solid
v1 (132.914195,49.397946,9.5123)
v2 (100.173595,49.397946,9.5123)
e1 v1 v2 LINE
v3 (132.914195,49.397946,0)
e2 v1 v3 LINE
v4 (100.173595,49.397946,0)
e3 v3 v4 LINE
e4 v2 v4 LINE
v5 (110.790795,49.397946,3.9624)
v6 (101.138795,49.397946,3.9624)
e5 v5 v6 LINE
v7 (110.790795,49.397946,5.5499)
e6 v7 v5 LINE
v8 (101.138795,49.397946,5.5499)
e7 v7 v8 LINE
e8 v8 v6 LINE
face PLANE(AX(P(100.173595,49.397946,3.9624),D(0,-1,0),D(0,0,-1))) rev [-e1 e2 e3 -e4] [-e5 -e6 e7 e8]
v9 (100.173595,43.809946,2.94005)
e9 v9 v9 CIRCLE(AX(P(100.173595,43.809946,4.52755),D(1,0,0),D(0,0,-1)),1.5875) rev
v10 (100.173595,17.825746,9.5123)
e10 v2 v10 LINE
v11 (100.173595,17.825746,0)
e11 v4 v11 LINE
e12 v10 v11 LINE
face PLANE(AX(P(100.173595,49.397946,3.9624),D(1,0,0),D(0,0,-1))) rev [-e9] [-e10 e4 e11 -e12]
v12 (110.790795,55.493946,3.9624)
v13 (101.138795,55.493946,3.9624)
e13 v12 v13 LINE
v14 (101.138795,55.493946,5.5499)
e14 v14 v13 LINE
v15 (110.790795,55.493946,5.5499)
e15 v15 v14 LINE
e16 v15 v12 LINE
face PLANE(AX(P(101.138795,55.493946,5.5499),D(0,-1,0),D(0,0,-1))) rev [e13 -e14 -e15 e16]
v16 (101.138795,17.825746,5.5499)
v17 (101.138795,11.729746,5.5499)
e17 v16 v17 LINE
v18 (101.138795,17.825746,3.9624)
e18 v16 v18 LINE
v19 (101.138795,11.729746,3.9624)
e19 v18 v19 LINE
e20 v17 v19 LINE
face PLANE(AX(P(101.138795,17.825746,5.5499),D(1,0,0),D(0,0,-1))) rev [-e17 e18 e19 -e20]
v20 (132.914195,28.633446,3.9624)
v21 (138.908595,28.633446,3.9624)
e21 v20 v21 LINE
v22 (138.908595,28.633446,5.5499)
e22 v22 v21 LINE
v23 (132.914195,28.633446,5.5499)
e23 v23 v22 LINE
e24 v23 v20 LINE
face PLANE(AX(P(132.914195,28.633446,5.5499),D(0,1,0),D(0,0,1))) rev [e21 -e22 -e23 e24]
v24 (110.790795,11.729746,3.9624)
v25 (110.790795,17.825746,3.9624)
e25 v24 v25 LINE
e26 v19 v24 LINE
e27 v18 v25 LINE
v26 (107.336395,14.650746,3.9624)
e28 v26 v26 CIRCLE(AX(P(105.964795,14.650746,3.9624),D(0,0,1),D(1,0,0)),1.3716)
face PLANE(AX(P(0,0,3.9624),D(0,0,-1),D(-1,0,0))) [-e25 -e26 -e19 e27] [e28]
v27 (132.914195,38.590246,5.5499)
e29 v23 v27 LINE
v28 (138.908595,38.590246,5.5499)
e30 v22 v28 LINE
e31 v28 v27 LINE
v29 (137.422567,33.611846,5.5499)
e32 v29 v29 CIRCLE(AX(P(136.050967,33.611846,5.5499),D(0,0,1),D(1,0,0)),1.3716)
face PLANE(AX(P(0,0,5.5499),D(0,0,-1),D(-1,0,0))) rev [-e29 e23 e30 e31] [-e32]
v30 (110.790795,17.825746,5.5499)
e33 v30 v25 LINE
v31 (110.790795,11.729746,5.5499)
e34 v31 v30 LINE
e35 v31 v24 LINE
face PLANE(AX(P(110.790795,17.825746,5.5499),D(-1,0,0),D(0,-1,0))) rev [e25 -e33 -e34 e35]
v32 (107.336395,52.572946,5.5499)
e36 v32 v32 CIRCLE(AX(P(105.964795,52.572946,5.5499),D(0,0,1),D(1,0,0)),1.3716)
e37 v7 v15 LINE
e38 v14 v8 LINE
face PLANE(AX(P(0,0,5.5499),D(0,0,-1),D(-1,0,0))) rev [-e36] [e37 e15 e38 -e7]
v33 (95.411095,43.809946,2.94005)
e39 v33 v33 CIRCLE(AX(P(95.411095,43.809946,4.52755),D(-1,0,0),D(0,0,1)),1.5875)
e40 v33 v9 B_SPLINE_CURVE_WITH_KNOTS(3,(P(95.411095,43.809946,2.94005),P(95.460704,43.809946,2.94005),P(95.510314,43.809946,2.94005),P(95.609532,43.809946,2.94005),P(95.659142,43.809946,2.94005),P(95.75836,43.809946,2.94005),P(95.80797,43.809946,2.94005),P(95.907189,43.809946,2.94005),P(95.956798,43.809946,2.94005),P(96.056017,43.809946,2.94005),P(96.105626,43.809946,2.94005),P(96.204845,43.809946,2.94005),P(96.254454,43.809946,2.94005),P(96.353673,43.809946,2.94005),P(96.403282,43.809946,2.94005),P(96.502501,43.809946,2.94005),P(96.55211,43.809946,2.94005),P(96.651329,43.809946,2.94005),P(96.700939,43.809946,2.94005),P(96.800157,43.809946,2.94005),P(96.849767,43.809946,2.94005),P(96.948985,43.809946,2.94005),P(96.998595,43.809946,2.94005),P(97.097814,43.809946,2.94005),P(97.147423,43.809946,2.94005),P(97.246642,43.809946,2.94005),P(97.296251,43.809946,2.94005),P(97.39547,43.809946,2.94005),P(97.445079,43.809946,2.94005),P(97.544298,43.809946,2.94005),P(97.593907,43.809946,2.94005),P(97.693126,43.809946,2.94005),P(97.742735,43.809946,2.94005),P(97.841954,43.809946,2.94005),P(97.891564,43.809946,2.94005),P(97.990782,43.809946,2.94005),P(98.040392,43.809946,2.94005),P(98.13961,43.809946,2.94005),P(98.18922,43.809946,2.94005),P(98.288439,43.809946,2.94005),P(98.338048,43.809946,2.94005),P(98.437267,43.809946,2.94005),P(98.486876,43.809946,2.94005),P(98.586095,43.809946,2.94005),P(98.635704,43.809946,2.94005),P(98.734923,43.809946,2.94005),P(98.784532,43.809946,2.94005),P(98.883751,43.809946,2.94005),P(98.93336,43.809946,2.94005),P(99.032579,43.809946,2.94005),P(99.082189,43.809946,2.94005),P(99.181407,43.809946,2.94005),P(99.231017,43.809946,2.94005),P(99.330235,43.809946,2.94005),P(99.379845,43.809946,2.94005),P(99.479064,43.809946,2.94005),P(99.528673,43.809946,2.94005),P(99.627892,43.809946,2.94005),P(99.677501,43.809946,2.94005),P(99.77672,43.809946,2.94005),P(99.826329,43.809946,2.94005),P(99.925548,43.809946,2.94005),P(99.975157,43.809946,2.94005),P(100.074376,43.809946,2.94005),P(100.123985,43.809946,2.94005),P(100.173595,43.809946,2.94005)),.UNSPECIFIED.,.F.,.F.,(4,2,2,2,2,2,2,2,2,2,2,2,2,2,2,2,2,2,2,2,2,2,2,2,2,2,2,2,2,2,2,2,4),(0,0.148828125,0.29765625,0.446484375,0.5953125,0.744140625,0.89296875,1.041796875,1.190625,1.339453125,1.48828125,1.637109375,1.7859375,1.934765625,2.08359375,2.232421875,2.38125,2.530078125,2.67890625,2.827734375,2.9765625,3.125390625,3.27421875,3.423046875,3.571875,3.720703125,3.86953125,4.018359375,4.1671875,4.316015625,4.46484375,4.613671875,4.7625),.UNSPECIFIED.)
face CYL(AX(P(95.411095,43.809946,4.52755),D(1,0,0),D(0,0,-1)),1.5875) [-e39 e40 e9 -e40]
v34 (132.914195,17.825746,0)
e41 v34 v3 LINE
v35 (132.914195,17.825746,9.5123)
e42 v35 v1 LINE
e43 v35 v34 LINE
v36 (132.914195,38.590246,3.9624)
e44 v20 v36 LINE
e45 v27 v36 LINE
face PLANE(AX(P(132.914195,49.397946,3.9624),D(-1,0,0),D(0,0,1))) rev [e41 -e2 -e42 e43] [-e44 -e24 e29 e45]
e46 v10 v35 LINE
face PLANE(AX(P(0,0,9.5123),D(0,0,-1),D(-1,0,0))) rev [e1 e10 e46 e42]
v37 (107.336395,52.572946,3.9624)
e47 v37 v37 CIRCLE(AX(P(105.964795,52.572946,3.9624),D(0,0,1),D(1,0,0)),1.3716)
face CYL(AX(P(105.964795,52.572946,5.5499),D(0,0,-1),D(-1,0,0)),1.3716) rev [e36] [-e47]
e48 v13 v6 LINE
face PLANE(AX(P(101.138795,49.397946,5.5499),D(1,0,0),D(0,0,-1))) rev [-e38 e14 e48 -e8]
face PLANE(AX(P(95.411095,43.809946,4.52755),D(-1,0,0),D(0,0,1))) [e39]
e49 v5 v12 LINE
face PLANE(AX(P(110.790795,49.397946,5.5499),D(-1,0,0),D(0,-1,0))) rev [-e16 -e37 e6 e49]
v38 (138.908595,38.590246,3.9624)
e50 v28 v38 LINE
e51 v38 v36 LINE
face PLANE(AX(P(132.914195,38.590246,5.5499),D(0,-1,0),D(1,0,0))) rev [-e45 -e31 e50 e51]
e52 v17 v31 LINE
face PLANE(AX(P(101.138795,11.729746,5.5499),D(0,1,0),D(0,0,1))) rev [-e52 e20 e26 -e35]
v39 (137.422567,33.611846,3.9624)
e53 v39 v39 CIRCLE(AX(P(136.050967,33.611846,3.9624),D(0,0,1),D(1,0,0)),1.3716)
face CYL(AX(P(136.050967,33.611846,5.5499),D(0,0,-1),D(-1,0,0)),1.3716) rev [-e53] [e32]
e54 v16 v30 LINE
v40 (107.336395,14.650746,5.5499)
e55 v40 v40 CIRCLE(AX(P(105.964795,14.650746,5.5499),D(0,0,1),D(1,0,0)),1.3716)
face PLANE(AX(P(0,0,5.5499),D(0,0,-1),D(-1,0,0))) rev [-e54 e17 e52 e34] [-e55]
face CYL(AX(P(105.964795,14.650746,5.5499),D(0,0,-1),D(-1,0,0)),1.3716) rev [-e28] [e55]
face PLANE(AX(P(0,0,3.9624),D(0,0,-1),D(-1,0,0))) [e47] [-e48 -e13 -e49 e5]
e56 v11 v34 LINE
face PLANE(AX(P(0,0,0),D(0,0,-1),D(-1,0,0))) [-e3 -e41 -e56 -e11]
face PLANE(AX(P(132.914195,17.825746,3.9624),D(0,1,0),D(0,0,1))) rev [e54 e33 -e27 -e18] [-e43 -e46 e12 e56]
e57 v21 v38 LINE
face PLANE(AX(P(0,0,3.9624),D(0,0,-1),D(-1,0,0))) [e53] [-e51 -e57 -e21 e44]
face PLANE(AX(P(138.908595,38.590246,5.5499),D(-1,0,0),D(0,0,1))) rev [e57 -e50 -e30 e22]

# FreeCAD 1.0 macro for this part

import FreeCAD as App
import Part
import Sketcher
Q = App.Units.Quantity

doc = App.newDocument("Part")
params = doc.addObject("Spreadsheet::Sheet", "Params")
for row, (alias, value) in enumerate([
    ("sketch1_width", "1.289 in"),
    ("sketch1_height", "1.243 in"),
    ("pad1_length", "0.156 in"),
    ("sketch2_diameter", "0.108 in"),
    ("sketch2_width", "0.38 in"),
    ("sketch2_height", "0.24 in"),
    ("sketch2_width2", "0.038 in"),
    ("sketch2_width3", "0.871 in"),
    ("pad2_length", "0.0625 in"),
    ("sketch3_width", "1.289 in"),
    ("sketch3_height", "1.243 in"),
    ("pad3_length", "0.156 in"),
    ("sketch4_diameter", "0.125 in"),
    ("pad4_length", "0.1875 in"),
], start=1):
    params.set(f"A{row}", alias)
    params.set(f"B{row}", "=" + value)
    params.setAlias(f"B{row}", alias)

body = doc.addObject("PartDesign::Body", "Body")

# Sketch on XY plane
sketch1 = doc.addObject("Sketcher::SketchObject", "Sketch")
body.addObject(sketch1)
sketch1.AttachmentSupport = (doc.XY_Plane, [""])
sketch1.MapMode = "FlatFace"
sketch1.addGeometry([
    Part.LineSegment(App.Vector(100, 49, 0), App.Vector(100, 18, 0)),
    Part.LineSegment(App.Vector(100, 18, 0), App.Vector(133, 18, 0)),
    Part.LineSegment(App.Vector(133, 18, 0), App.Vector(133, 49, 0)),
    Part.LineSegment(App.Vector(133, 49, 0), App.Vector(100, 49, 0)),
], False)
sketch1.addConstraint([
    Sketcher.Constraint("Coincident", 0, 2, 1, 1),
    Sketcher.Constraint("Coincident", 1, 2, 2, 1),
    Sketcher.Constraint("Coincident", 2, 2, 3, 1),
    Sketcher.Constraint("Coincident", 3, 2, 0, 1),
    Sketcher.Constraint("Vertical", 0),
    Sketcher.Constraint("Horizontal", 1),
    Sketcher.Constraint("Vertical", 2),
    Sketcher.Constraint("Horizontal", 3),
    Sketcher.Constraint("DistanceX", 1, 1, 1, 2, Q("1.289 in")),
    Sketcher.Constraint("DistanceY", 0, 2, 0, 1, Q("1.243 in")),
    Sketcher.Constraint("DistanceX", -1, 1, 0, 2, Q("100.173595 mm")),
    Sketcher.Constraint("DistanceY", -1, 1, 0, 2, Q("17.825746 mm")),
])
sketch1.setExpression("Constraints[8]", "Params.sketch1_width")
sketch1.setExpression("Constraints[9]", "Params.sketch1_height")
pad1 = doc.addObject("PartDesign::Pad", "Pad")
body.addObject(pad1)
pad1.Profile = sketch1
pad1.setExpression("Length", "Params.pad1_length")

# Sketch on XY plane
sketch2 = doc.addObject("Sketcher::SketchObject", "Sketch001")
body.addObject(sketch2)
sketch2.AttachmentSupport = (doc.XY_Plane, [""])
sketch2.MapMode = "FlatFace"
sketch2.AttachmentOffset = App.Placement(App.Vector(0, 0, 0.156 * 25.4), App.Rotation())
sketch2.addGeometry([
    Part.LineSegment(App.Vector(101.1, 49.4, 0), App.Vector(100.2, 49.4, 0)),  # 0
    Part.LineSegment(App.Vector(100.2, 49.4, 0), App.Vector(100.2, 17.8, 0)),  # 1
    Part.LineSegment(App.Vector(100.2, 17.8, 0), App.Vector(101.1, 17.8, 0)),  # 2
    Part.LineSegment(App.Vector(101.1, 17.8, 0), App.Vector(101.1, 11.7, 0)),  # 3
    Part.LineSegment(App.Vector(101.1, 11.7, 0), App.Vector(110.8, 11.7, 0)),  # 4
    Part.LineSegment(App.Vector(110.8, 11.7, 0), App.Vector(110.8, 17.8, 0)),  # 5
    Part.LineSegment(App.Vector(110.8, 17.8, 0), App.Vector(132.9, 17.8, 0)),  # 6
    Part.LineSegment(App.Vector(132.9, 17.8, 0), App.Vector(132.9, 28.6, 0)),  # 7
    Part.LineSegment(App.Vector(132.9, 28.6, 0), App.Vector(138.9, 28.6, 0)),  # 8
    Part.LineSegment(App.Vector(138.9, 28.6, 0), App.Vector(138.9, 38.6, 0)),  # 9
    Part.LineSegment(App.Vector(138.9, 38.6, 0), App.Vector(132.9, 38.6, 0)),  # 10
    Part.LineSegment(App.Vector(132.9, 38.6, 0), App.Vector(132.9, 49.4, 0)),  # 11
    Part.LineSegment(App.Vector(132.9, 49.4, 0), App.Vector(110.8, 49.4, 0)),  # 12
    Part.LineSegment(App.Vector(110.8, 49.4, 0), App.Vector(110.8, 55.5, 0)),  # 13
    Part.LineSegment(App.Vector(110.8, 55.5, 0), App.Vector(101.1, 55.5, 0)),  # 14
    Part.LineSegment(App.Vector(101.1, 55.5, 0), App.Vector(101.1, 49.4, 0)),  # 15
    Part.Circle(App.Vector(136.1, 33.6, 0), App.Vector(0, 0, 1), 1.4),  # 16
    Part.Circle(App.Vector(106, 14.7, 0), App.Vector(0, 0, 1), 1.4),  # 17
    Part.Circle(App.Vector(106, 52.6, 0), App.Vector(0, 0, 1), 1.4),  # 18
], False)
sketch2.addConstraint([
    Sketcher.Constraint("Coincident", 0, 2, 1, 1),
    Sketcher.Constraint("Coincident", 1, 2, 2, 1),
    Sketcher.Constraint("Coincident", 2, 2, 3, 1),
    Sketcher.Constraint("Coincident", 3, 2, 4, 1),
    Sketcher.Constraint("Coincident", 4, 2, 5, 1),
    Sketcher.Constraint("Coincident", 5, 2, 6, 1),
    Sketcher.Constraint("Coincident", 6, 2, 7, 1),
    Sketcher.Constraint("Coincident", 7, 2, 8, 1),
    Sketcher.Constraint("Coincident", 8, 2, 9, 1),
    Sketcher.Constraint("Coincident", 9, 2, 10, 1),
    Sketcher.Constraint("Coincident", 10, 2, 11, 1),
    Sketcher.Constraint("Coincident", 11, 2, 12, 1),
    Sketcher.Constraint("Coincident", 12, 2, 13, 1),
    Sketcher.Constraint("Coincident", 13, 2, 14, 1),
    Sketcher.Constraint("Coincident", 14, 2, 15, 1),
    Sketcher.Constraint("Coincident", 15, 2, 0, 1),
    Sketcher.Constraint("Horizontal", 0),
    Sketcher.Constraint("Vertical", 1),
    Sketcher.Constraint("Horizontal", 2),
    Sketcher.Constraint("Vertical", 3),
    Sketcher.Constraint("Horizontal", 4),
    Sketcher.Constraint("Vertical", 5),
    Sketcher.Constraint("Horizontal", 6),
    Sketcher.Constraint("Vertical", 7),
    Sketcher.Constraint("Horizontal", 8),
    Sketcher.Constraint("Vertical", 9),
    Sketcher.Constraint("Horizontal", 10),
    Sketcher.Constraint("Vertical", 11),
    Sketcher.Constraint("Horizontal", 12),
    Sketcher.Constraint("Vertical", 13),
    Sketcher.Constraint("Horizontal", 14),
    Sketcher.Constraint("Vertical", 15),
    Sketcher.Constraint("Equal", 16, 17),
    Sketcher.Constraint("Equal", 17, 18),
    Sketcher.Constraint("Horizontal", 2, 2, 5, 2),
    Sketcher.Constraint("Horizontal", 0, 2, 11, 2),
    Sketcher.Constraint("Vertical", 17, 3, 18, 3),
    Sketcher.Constraint("Vertical", 7, 2, 10, 2),
    Sketcher.Constraint("Vertical", 5, 2, 12, 2),
    Sketcher.Constraint("Vertical", 3, 2, 14, 2),
    Sketcher.Constraint("Equal", 7, 11),
    Sketcher.Constraint("Equal", 5, 13),
    Sketcher.Constraint("Diameter", 16, Q("0.108 in")),
    Sketcher.Constraint("DistanceX", 4, 1, 4, 2, Q("0.38 in")),
    Sketcher.Constraint("DistanceY", 3, 2, 3, 1, Q("0.24 in")),
    Sketcher.Constraint("DistanceX", 0, 2, 0, 1, Q("0.038 in")),
    Sketcher.Constraint("DistanceX", 6, 1, 6, 2, Q("0.871 in")),
    Sketcher.Constraint("DistanceX", 8, 1, 8, 2, Q("0.236 in")),
    Sketcher.Constraint("DistanceY", 1, 2, 1, 1, Q("1.243 in")),
    Sketcher.Constraint("DistanceY", 9, 1, 9, 2, Q("0.392 in")),
    Sketcher.Constraint("DistanceX", 2, 2, 17, 3, Q("0.19 in")),
    Sketcher.Constraint("DistanceY", 17, 3, 18, 3, Q("1.493 in")),
    Sketcher.Constraint("DistanceY", 0, 2, 18, 3, Q("0.125 in")),
    Sketcher.Constraint("DistanceY", 7, 2, 16, 3, Q("0.196 in")),
    Sketcher.Constraint("DistanceX", -1, 1, 16, 3, Q("136.050967 mm")),
    Sketcher.Constraint("DistanceY", -1, 1, 16, 3, Q("33.611846 mm")),
    Sketcher.Constraint("DistanceX", -1, 1, 17, 3, Q("105.964795 mm")),
])
sketch2.setExpression("Constraints[42]", "Params.sketch2_diameter")
sketch2.setExpression("Constraints[43]", "Params.sketch2_width")
sketch2.setExpression("Constraints[44]", "Params.sketch2_height")
sketch2.setExpression("Constraints[45]", "Params.sketch2_width2")
sketch2.setExpression("Constraints[46]", "Params.sketch2_width3")
pad2 = doc.addObject("PartDesign::Pad", "Pad001")
body.addObject(pad2)
pad2.Profile = sketch2
pad2.setExpression("Length", "Params.pad2_length")

# Sketch on XY plane
sketch3 = doc.addObject("Sketcher::SketchObject", "Sketch002")
body.addObject(sketch3)
sketch3.AttachmentSupport = (doc.XY_Plane, [""])
sketch3.MapMode = "FlatFace"
sketch3.AttachmentOffset = App.Placement(App.Vector(0, 0, 0.2185 * 25.4), App.Rotation())
sketch3.addGeometry([
    Part.LineSegment(App.Vector(100, 49, 0), App.Vector(100, 18, 0)),
    Part.LineSegment(App.Vector(100, 18, 0), App.Vector(133, 18, 0)),
    Part.LineSegment(App.Vector(133, 18, 0), App.Vector(133, 49, 0)),
    Part.LineSegment(App.Vector(133, 49, 0), App.Vector(100, 49, 0)),
], False)
sketch3.addConstraint([
    Sketcher.Constraint("Coincident", 0, 2, 1, 1),
    Sketcher.Constraint("Coincident", 1, 2, 2, 1),
    Sketcher.Constraint("Coincident", 2, 2, 3, 1),
    Sketcher.Constraint("Coincident", 3, 2, 0, 1),
    Sketcher.Constraint("Vertical", 0),
    Sketcher.Constraint("Horizontal", 1),
    Sketcher.Constraint("Vertical", 2),
    Sketcher.Constraint("Horizontal", 3),
    Sketcher.Constraint("DistanceX", 1, 1, 1, 2, Q("1.289 in")),
    Sketcher.Constraint("DistanceY", 0, 2, 0, 1, Q("1.243 in")),
    Sketcher.Constraint("DistanceX", -1, 1, 0, 2, Q("100.173595 mm")),
    Sketcher.Constraint("DistanceY", -1, 1, 0, 2, Q("17.825746 mm")),
])
sketch3.setExpression("Constraints[8]", "Params.sketch3_width")
sketch3.setExpression("Constraints[9]", "Params.sketch3_height")
pad3 = doc.addObject("PartDesign::Pad", "Pad002")
body.addObject(pad3)
pad3.Profile = sketch3
pad3.setExpression("Length", "Params.pad3_length")

# Sketch on YZ plane
sketch4 = doc.addObject("Sketcher::SketchObject", "Sketch003")
body.addObject(sketch4)
sketch4.AttachmentSupport = (doc.YZ_Plane, [""])
sketch4.MapMode = "FlatFace"
sketch4.AttachmentOffset = App.Placement(App.Vector(0, 0, 100.173595), App.Rotation())
sketch4.addGeometry(Part.Circle(App.Vector(43.8, 4.5, 0), App.Vector(0, 0, 1), 1.6), False)
sketch4.addConstraint([
    Sketcher.Constraint("Diameter", 0, Q("0.125 in")),
    Sketcher.Constraint("DistanceY", -1, 1, 0, 3, Q("4.52755 mm")),
    Sketcher.Constraint("DistanceX", -1, 1, 0, 3, Q("43.809946 mm")),
])
sketch4.setExpression("Constraints[0]", "Params.sketch4_diameter")
pad4 = doc.addObject("PartDesign::Pad", "Pad003")
body.addObject(pad4)
pad4.Profile = sketch4
pad4.setExpression("Length", "Params.pad4_length")
pad4.Reversed = True

doc.recompute()
